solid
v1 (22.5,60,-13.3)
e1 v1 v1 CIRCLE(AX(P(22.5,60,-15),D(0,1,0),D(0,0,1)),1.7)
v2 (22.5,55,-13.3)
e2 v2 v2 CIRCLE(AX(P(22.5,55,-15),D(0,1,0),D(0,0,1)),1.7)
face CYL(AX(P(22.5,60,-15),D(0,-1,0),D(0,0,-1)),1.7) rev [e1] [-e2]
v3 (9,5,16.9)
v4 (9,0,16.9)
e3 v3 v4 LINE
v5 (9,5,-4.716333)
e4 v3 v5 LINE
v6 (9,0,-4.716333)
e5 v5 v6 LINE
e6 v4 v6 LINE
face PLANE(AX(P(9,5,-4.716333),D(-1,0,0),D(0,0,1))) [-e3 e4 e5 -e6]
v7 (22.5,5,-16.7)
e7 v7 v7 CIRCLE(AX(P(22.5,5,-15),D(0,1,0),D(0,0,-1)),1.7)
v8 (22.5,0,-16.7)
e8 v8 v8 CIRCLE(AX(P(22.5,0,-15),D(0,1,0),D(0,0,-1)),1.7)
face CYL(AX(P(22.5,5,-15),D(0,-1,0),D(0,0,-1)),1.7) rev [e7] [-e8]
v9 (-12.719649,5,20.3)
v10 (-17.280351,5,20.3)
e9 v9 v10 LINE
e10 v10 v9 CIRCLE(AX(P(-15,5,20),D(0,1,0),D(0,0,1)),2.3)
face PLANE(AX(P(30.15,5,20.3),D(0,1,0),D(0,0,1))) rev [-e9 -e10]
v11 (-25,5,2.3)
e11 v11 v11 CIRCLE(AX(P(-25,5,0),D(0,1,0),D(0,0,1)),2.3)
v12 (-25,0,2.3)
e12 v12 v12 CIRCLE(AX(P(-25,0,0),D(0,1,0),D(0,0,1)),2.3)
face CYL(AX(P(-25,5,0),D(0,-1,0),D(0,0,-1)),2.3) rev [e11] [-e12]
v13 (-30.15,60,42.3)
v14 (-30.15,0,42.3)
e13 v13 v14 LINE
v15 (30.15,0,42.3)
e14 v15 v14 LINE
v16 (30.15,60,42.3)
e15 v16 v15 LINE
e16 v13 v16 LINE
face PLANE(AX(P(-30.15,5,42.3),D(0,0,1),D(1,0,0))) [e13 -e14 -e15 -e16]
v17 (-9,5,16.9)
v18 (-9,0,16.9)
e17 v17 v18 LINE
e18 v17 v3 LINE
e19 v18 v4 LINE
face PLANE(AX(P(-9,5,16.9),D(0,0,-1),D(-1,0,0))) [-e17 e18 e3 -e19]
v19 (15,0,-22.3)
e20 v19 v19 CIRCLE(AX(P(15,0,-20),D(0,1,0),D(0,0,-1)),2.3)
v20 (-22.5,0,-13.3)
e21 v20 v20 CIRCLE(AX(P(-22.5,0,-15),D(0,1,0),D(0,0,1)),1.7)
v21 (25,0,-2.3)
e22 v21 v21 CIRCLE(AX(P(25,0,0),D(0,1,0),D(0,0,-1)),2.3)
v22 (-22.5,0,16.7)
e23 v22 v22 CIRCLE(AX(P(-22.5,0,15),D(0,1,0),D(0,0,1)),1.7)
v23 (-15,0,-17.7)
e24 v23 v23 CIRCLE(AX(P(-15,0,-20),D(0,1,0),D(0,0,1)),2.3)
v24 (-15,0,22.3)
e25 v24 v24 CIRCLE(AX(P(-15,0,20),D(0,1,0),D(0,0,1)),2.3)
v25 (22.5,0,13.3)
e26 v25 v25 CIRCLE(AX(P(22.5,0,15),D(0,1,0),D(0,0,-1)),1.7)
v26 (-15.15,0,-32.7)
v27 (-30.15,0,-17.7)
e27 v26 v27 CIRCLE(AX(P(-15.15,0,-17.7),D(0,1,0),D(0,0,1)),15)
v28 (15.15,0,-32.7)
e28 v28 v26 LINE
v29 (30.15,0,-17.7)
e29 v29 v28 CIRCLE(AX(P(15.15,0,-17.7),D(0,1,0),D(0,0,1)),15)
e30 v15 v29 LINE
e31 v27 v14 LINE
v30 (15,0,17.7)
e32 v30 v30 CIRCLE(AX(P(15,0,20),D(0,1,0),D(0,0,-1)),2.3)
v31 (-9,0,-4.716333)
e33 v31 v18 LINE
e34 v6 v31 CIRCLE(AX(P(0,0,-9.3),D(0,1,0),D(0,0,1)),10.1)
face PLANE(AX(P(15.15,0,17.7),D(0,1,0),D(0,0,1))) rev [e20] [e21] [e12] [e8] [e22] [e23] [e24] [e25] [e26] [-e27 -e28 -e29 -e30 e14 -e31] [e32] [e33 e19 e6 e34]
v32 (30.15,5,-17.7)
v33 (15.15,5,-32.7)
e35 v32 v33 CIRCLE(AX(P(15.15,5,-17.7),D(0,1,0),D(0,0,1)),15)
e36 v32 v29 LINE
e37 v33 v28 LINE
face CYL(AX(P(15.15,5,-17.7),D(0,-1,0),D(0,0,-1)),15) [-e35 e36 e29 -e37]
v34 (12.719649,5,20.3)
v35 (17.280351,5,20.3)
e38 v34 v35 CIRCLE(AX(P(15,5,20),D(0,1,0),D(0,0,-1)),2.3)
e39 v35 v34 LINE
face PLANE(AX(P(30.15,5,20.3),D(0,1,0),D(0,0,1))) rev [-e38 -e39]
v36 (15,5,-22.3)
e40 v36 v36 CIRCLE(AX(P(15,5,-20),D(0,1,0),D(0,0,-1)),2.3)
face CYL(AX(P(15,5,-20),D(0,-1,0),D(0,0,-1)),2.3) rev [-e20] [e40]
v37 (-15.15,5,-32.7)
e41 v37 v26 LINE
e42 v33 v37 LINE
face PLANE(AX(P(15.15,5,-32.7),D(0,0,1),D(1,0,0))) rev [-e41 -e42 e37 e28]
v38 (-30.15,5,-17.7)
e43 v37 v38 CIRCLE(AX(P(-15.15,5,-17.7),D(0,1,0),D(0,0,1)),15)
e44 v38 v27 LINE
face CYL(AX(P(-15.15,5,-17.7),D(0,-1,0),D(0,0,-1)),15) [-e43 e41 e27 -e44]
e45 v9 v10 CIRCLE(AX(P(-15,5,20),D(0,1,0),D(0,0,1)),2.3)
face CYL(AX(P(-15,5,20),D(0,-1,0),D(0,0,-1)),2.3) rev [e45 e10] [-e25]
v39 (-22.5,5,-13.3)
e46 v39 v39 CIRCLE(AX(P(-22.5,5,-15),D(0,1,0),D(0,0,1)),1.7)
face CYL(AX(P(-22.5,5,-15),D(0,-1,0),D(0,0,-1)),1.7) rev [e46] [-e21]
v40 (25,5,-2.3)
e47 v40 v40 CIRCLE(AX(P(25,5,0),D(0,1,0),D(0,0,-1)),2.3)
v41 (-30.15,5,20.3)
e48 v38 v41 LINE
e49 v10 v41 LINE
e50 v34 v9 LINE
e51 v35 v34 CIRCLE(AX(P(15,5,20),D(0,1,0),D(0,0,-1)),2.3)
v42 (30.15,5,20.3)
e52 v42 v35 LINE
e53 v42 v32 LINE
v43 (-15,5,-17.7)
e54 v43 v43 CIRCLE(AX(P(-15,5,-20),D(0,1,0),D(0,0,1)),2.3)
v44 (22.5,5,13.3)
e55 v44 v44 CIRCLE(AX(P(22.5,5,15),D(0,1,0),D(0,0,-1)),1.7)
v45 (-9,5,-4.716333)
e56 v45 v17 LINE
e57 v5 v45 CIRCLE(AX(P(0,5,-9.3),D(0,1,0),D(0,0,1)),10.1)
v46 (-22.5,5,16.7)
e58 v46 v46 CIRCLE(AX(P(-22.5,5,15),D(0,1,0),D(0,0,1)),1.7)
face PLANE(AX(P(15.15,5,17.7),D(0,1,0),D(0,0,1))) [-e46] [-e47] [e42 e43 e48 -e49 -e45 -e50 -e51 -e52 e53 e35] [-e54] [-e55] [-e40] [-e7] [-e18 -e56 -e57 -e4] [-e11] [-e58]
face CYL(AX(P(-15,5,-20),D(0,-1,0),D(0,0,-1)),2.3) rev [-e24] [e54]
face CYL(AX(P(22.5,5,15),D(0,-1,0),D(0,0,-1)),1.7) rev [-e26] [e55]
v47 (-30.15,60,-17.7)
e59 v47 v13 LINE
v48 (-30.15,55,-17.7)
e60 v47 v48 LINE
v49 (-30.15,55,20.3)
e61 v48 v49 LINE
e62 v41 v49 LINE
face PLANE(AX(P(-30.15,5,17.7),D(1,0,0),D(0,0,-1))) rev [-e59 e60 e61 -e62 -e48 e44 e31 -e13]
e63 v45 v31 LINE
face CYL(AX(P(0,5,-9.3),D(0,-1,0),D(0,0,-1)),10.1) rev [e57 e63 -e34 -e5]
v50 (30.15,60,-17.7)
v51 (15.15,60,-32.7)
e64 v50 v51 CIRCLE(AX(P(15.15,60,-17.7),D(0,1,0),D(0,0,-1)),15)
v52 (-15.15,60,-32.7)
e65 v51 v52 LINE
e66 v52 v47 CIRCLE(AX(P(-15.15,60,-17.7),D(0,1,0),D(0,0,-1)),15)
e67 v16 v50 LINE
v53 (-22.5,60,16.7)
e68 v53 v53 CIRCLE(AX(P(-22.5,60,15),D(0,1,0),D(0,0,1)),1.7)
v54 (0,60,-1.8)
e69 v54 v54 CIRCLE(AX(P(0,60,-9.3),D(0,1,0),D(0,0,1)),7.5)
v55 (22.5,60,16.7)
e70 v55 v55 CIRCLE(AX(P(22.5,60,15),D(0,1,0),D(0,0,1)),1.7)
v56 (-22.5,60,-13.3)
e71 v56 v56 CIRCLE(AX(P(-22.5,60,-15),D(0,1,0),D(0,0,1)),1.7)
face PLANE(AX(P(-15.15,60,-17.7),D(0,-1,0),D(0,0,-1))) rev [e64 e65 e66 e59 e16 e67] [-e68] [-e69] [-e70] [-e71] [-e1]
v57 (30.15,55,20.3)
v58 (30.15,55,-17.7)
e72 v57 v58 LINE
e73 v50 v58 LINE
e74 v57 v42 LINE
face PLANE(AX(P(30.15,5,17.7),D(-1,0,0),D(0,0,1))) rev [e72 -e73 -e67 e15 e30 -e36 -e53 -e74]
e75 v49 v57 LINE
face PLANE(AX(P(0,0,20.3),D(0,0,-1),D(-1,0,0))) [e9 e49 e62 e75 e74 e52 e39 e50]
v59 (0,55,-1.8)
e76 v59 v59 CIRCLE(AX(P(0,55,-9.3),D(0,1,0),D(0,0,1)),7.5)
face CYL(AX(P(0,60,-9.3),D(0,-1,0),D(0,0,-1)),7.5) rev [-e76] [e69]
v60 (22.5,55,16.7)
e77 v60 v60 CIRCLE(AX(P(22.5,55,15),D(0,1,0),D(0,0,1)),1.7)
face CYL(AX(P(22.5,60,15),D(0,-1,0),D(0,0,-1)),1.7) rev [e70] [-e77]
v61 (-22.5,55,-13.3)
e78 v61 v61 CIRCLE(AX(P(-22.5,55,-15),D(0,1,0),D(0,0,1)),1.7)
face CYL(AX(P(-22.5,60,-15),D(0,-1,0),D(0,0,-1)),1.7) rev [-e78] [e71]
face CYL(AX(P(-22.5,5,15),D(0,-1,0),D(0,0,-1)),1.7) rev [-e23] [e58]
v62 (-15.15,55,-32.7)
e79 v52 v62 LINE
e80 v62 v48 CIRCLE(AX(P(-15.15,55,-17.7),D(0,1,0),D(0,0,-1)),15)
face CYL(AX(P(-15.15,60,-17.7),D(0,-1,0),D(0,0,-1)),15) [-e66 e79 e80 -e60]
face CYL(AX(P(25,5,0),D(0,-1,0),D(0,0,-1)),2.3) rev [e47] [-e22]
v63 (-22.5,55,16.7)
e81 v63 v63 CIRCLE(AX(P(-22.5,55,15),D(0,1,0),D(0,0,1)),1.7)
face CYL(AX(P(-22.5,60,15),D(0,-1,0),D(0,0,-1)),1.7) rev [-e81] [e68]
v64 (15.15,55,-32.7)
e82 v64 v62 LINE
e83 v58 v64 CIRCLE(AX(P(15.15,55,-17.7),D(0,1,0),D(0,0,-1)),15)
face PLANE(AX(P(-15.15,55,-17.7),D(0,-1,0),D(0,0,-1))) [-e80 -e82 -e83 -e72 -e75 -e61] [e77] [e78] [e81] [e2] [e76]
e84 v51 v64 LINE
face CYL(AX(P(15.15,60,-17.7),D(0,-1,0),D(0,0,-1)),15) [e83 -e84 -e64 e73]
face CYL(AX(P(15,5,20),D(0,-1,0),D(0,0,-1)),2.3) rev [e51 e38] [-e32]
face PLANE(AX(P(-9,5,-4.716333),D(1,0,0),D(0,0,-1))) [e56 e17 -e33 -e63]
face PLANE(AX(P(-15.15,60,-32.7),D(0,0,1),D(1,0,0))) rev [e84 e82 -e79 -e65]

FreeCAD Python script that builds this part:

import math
import FreeCAD as App
import Part
import Sketcher

V = App.Vector


def add_polygon(sketch, points):
    """Adds a closed chain of lines whose ends are joined by coincident constraints."""
    first, n = sketch.GeometryCount, len(points)
    for a, b in zip(points, points[1:] + points[:1]):
        sketch.addGeometry(Part.LineSegment(App.Vector(*a, 0), App.Vector(*b, 0)), False)
    for i in range(n):
        sketch.addConstraint(Sketcher.Constraint("Coincident", first + i, 2, first + (i + 1) % n, 1))

doc = App.newDocument("Part")
params = doc.addObject("Spreadsheet::Sheet", "Params")
for row, (alias, value) in enumerate([
    ("sketch1_radius", "15 mm"),
    ("sketch1_diameter", "4.6 mm"),
    ("sketch1_diameter2", "3.4 mm"),
    ("sketch1_radius2", "10.1 mm"),
    ("sketch1_width", "18 mm"),
    ("pad1_length", "5 mm"),
    ("sketch2_width", "30.3 mm"),
    ("sketch2_width2", "60.3 mm"),
    ("sketch2_height", "24.6 mm"),
    ("pad2_length", "5 mm"),
    ("sketch3_height", "15 mm"),
    ("sketch3_width", "60.3 mm"),
    ("pad3_length", "50 mm"),
    ("sketch4_diameter", "15 mm"),
    ("sketch4_radius", "15 mm"),
    ("sketch4_diameter2", "3.4 mm"),
    ("sketch4_height", "60 mm"),
    ("sketch4_width", "60.3 mm"),
    ("pad4_length", "5 mm"),
    ("sketch5_height", "50 mm"),
    ("sketch5_width", "60.3 mm"),
    ("pad5_length", "7 mm"),
], start=1):
    params.set(f"A{row}", alias)
    params.set(f"B{row}", "=" + value)
    params.setAlias(f"B{row}", alias)

body = doc.addObject("PartDesign::Body", "Body")

# Sketch on XZ plane
sketch1 = body.newObject("Sketcher::SketchObject", "Sketch")
sketch1.AttachmentSupport = (doc.getObject("XZ_Plane"), [""])
sketch1.MapMode = "FlatFace"
sketch1.addGeometry(Part.LineSegment(V(-15.15, 32.7, 0), V(15.15, 32.7, 0)), False)
sketch1.addGeometry(Part.ArcOfCircle(Part.Circle(V(15.15, 17.7, 0), V(0, 0, 1), 15), math.radians(0), math.radians(90)), False)
sketch1.addGeometry(Part.LineSegment(V(30.15, 17.7, 0), V(30.15, -17.7, 0)), False)
sketch1.addGeometry(Part.ArcOfCircle(Part.Circle(V(15.15, -17.7, 0), V(0, 0, 1), 15), math.radians(-90), math.radians(0)), False)
sketch1.addGeometry(Part.LineSegment(V(15.15, -32.7, 0), V(-15.15, -32.7, 0)), False)
sketch1.addGeometry(Part.ArcOfCircle(Part.Circle(V(-15.15, -17.7, 0), V(0, 0, 1), 15), math.radians(180), math.radians(270)), False)
sketch1.addGeometry(Part.LineSegment(V(-30.15, -17.7, 0), V(-30.15, 17.7, 0)), False)
sketch1.addGeometry(Part.ArcOfCircle(Part.Circle(V(-15.15, 17.7, 0), V(0, 0, 1), 15), math.radians(90), math.radians(180)), False)
sketch1.addGeometry(Part.Circle(V(15, 20, 0), V(0, 0, 1), 2.3), False)
sketch1.addGeometry(Part.Circle(V(22.5, 15, 0), V(0, 0, 1), 1.7), False)
sketch1.addGeometry(Part.Circle(V(-15, 20, 0), V(0, 0, 1), 2.3), False)
sketch1.addGeometry(Part.Circle(V(-22.5, 15, 0), V(0, 0, 1), 1.7), False)
sketch1.addGeometry(Part.Circle(V(25, 0, 0), V(0, 0, 1), 2.3), False)
sketch1.addGeometry(Part.Circle(V(22.5, -15, 0), V(0, 0, 1), 1.7), False)
sketch1.addGeometry(Part.Circle(V(15, -20, 0), V(0, 0, 1), 2.3), False)
sketch1.addGeometry(Part.ArcOfCircle(Part.Circle(V(0, -9.3, 0), V(0, 0, 1), 10.1), math.radians(153.010424), math.radians(386.989576)), False)
sketch1.addGeometry(Part.LineSegment(V(9, -4.716333, 0), V(9, 16.9, 0)), False)
sketch1.addGeometry(Part.LineSegment(V(9, 16.9, 0), V(-9, 16.9, 0)), False)
sketch1.addGeometry(Part.LineSegment(V(-9, 16.9, 0), V(-9, -4.716333, 0)), False)
sketch1.addGeometry(Part.Circle(V(-25, 0, 0), V(0, 0, 1), 2.3), False)
sketch1.addGeometry(Part.Circle(V(-22.5, -15, 0), V(0, 0, 1), 1.7), False)
sketch1.addGeometry(Part.Circle(V(-15, -20, 0), V(0, 0, 1), 2.3), False)
sketch1.addConstraint(Sketcher.Constraint("Tangent", 0, 2, 1, 2))
sketch1.addConstraint(Sketcher.Constraint("Tangent", 1, 1, 2, 1))
sketch1.addConstraint(Sketcher.Constraint("Tangent", 2, 2, 3, 2))
sketch1.addConstraint(Sketcher.Constraint("Tangent", 3, 1, 4, 1))
sketch1.addConstraint(Sketcher.Constraint("Tangent", 4, 2, 5, 2))
sketch1.addConstraint(Sketcher.Constraint("Tangent", 5, 1, 6, 1))
sketch1.addConstraint(Sketcher.Constraint("Tangent", 6, 2, 7, 2))
sketch1.addConstraint(Sketcher.Constraint("Tangent", 7, 1, 0, 1))
sketch1.addConstraint(Sketcher.Constraint("Coincident", 15, 2, 16, 1))
sketch1.addConstraint(Sketcher.Constraint("Coincident", 16, 2, 17, 1))
sketch1.addConstraint(Sketcher.Constraint("Coincident", 17, 2, 18, 1))
sketch1.addConstraint(Sketcher.Constraint("Coincident", 18, 2, 15, 1))
sketch1.addConstraint(Sketcher.Constraint("Horizontal", 0))
sketch1.addConstraint(Sketcher.Constraint("Vertical", 2))
sketch1.addConstraint(Sketcher.Constraint("Horizontal", 4))
sketch1.addConstraint(Sketcher.Constraint("Vertical", 6))
sketch1.addConstraint(Sketcher.Constraint("Vertical", 16))
sketch1.addConstraint(Sketcher.Constraint("Horizontal", 17))
sketch1.addConstraint(Sketcher.Constraint("Vertical", 18))
sketch1.addConstraint(Sketcher.Constraint("Equal", 1, 3))
sketch1.addConstraint(Sketcher.Constraint("Equal", 3, 5))
sketch1.addConstraint(Sketcher.Constraint("Equal", 5, 7))
sketch1.addConstraint(Sketcher.Constraint("Equal", 8, 10))
sketch1.addConstraint(Sketcher.Constraint("Equal", 9, 11))
sketch1.addConstraint(Sketcher.Constraint("Equal", 10, 12))
sketch1.addConstraint(Sketcher.Constraint("Equal", 11, 13))
sketch1.addConstraint(Sketcher.Constraint("Equal", 12, 14))
sketch1.addConstraint(Sketcher.Constraint("Equal", 14, 19))
sketch1.addConstraint(Sketcher.Constraint("Equal", 13, 20))
sketch1.addConstraint(Sketcher.Constraint("Equal", 19, 21))
sketch1.addConstraint(Sketcher.Constraint("Symmetric", 1, 3, 5, 3, -1, 1))
sketch1.addConstraint(Sketcher.Constraint("Symmetric", 11, 3, 13, 3, -1, 1))
sketch1.addConstraint(Sketcher.Constraint("Symmetric", 10, 3, 14, 3, -1, 1))
sketch1.addConstraint(Sketcher.Constraint("Symmetric", 12, 3, 19, 3, -1, 1))
sketch1.addConstraint(Sketcher.Constraint("Symmetric", 9, 3, 20, 3, -1, 1))
sketch1.addConstraint(Sketcher.Constraint("Symmetric", 8, 3, 21, 3, -1, 1))
sketch1.addConstraint(Sketcher.Constraint("Symmetric", 8, 3, 10, 3, -2))
sketch1.addConstraint(Sketcher.Constraint("Symmetric", 9, 3, 11, 3, -2))
sketch1.addConstraint(Sketcher.Constraint("Symmetric", 15, 2, 18, 2, -2))
sketch1.addConstraint(Sketcher.Constraint("PointOnObject", 12, 3, -1))
sketch1.addConstraint(Sketcher.Constraint("Radius", 1, 15.0))
sketch1.addConstraint(Sketcher.Constraint("Diameter", 8, 4.6))
sketch1.addConstraint(Sketcher.Constraint("Diameter", 9, 3.4))
sketch1.addConstraint(Sketcher.Constraint("Radius", 15, 10.1))
sketch1.addConstraint(Sketcher.Constraint("DistanceX", 17, 2, 17, 1, 18.0))
sketch1.addConstraint(Sketcher.Constraint("DistanceX", 0, 1, 0, 2, 30.3))
sketch1.addConstraint(Sketcher.Constraint("DistanceY", 2, 2, 2, 1, 35.4))
sketch1.addConstraint(Sketcher.Constraint("DistanceX", -1, 1, 8, 3, 15.0))
sketch1.addConstraint(Sketcher.Constraint("DistanceY", -1, 1, 8, 3, 20.0))
sketch1.addConstraint(Sketcher.Constraint("DistanceY", -1, 1, 9, 3, 15.0))
sketch1.addConstraint(Sketcher.Constraint("DistanceX", -1, 1, 12, 3, 25.0))
sketch1.addConstraint(Sketcher.Constraint("DistanceX", -1, 1, 9, 3, 22.5))
sketch1.addConstraint(Sketcher.Constraint("DistanceY", 15, 3, -1, 1, 9.3))
sketch1.addConstraint(Sketcher.Constraint("DistanceY", -1, 1, 16, 2, 16.9))
sketch1.setExpression("Constraints[40]", "Params.sketch1_radius")
sketch1.setExpression("Constraints[41]", "Params.sketch1_diameter")
sketch1.setExpression("Constraints[42]", "Params.sketch1_diameter2")
sketch1.setExpression("Constraints[43]", "Params.sketch1_radius2")
sketch1.setExpression("Constraints[44]", "Params.sketch1_width")
pad1 = body.newObject("PartDesign::Pad", "Pad")
pad1.Profile = sketch1
pad1.setExpression("Length", "Params.pad1_length")
pad1.Reversed = True

# Sketch on XZ plane
sketch2 = body.newObject("Sketcher::SketchObject", "Sketch001")
sketch2.AttachmentSupport = (doc.getObject("XZ_Plane"), [""])
sketch2.MapMode = "FlatFace"
add_polygon(sketch2, [(-30.15, 42.3), (-30.15, 17.7), (-15.15, 32.7), (15.15, 32.7), (30.15, 17.7), (30.15, 42.3)])  # lines 0-5
sketch2.addConstraint(Sketcher.Constraint("Vertical", 0))
sketch2.addConstraint(Sketcher.Constraint("Horizontal", 2))
sketch2.addConstraint(Sketcher.Constraint("Vertical", 4))
sketch2.addConstraint(Sketcher.Constraint("Horizontal", 5))
sketch2.addConstraint(Sketcher.Constraint("Symmetric", 0, 2, 3, 2, -2))
sketch2.addConstraint(Sketcher.Constraint("Perpendicular", 1, 3))
sketch2.addConstraint(Sketcher.Constraint("Equal", 1, 3))
sketch2.addConstraint(Sketcher.Constraint("DistanceX", 2, 1, 2, 2, 30.3))
sketch2.addConstraint(Sketcher.Constraint("DistanceX", 5, 2, 5, 1, 60.3))
sketch2.addConstraint(Sketcher.Constraint("DistanceY", 0, 2, 0, 1, 24.6))
sketch2.addConstraint(Sketcher.Constraint("DistanceY", -1, 1, 0, 2, 17.7))
sketch2.setExpression("Constraints[13]", "Params.sketch2_width")
sketch2.setExpression("Constraints[14]", "Params.sketch2_width2")
sketch2.setExpression("Constraints[15]", "Params.sketch2_height")
pad2 = body.newObject("PartDesign::Pad", "Pad001")
pad2.Profile = sketch2
pad2.setExpression("Length", "Params.pad2_length")
pad2.Reversed = True

# Sketch on XZ plane
sketch3 = body.newObject("Sketcher::SketchObject", "Sketch002")
sketch3.AttachmentSupport = (doc.getObject("XZ_Plane"), [""])
sketch3.MapMode = "FlatFace"
sketch3.AttachmentOffset = App.Placement(V(0, 0, -5), App.Rotation())
add_polygon(sketch3, [(-30.15, 27.3), (-30.15, 42.3), (30.15, 42.3), (30.15, 27.3)])  # lines 0-3
sketch3.addConstraint(Sketcher.Constraint("Vertical", 0))
sketch3.addConstraint(Sketcher.Constraint("Horizontal", 1))
sketch3.addConstraint(Sketcher.Constraint("Vertical", 2))
sketch3.addConstraint(Sketcher.Constraint("Horizontal", 3))
sketch3.addConstraint(Sketcher.Constraint("DistanceY", 0, 1, 0, 2, 15.0))
sketch3.addConstraint(Sketcher.Constraint("DistanceX", 1, 1, 1, 2, 60.3))
sketch3.addConstraint(Sketcher.Constraint("DistanceY", -1, 1, 0, 2, 42.3))
sketch3.addConstraint(Sketcher.Constraint("DistanceX", 0, 2, -1, 1, 30.15))
sketch3.setExpression("Constraints[8]", "Params.sketch3_height")
sketch3.setExpression("Constraints[9]", "Params.sketch3_width")
pad3 = body.newObject("PartDesign::Pad", "Pad002")
pad3.Profile = sketch3
pad3.setExpression("Length", "Params.pad3_length")
pad3.Reversed = True

# Sketch on XZ plane
sketch4 = body.newObject("Sketcher::SketchObject", "Sketch003")
sketch4.AttachmentSupport = (doc.getObject("XZ_Plane"), [""])
sketch4.MapMode = "FlatFace"
sketch4.AttachmentOffset = App.Placement(V(0, 0, -55), App.Rotation())
sketch4.addGeometry(Part.LineSegment(V(-30.15, 42.3, 0), V(30.15, 42.3, 0)), False)
sketch4.addGeometry(Part.LineSegment(V(30.15, 42.3, 0), V(30.15, -17.7, 0)), False)
sketch4.addGeometry(Part.ArcOfCircle(Part.Circle(V(15.15, -17.7, 0), V(0, 0, 1), 15), math.radians(-90), math.radians(0)), False)
sketch4.addGeometry(Part.LineSegment(V(15.15, -32.7, 0), V(-15.15, -32.7, 0)), False)
sketch4.addGeometry(Part.ArcOfCircle(Part.Circle(V(-15.15, -17.7, 0), V(0, 0, 1), 15), math.radians(180), math.radians(270)), False)
sketch4.addGeometry(Part.LineSegment(V(-30.15, -17.7, 0), V(-30.15, 42.3, 0)), False)
sketch4.addGeometry(Part.Circle(V(-22.5, 15, 0), V(0, 0, 1), 1.7), False)
sketch4.addGeometry(Part.Circle(V(22.5, 15, 0), V(0, 0, 1), 1.7), False)
sketch4.addGeometry(Part.Circle(V(-22.5, -15, 0), V(0, 0, 1), 1.7), False)
sketch4.addGeometry(Part.Circle(V(0, -9.3, 0), V(0, 0, 1), 7.5), False)
sketch4.addGeometry(Part.Circle(V(22.5, -15, 0), V(0, 0, 1), 1.7), False)
sketch4.addConstraint(Sketcher.Constraint("Coincident", 0, 2, 1, 1))
sketch4.addConstraint(Sketcher.Constraint("Tangent", 1, 2, 2, 2))
sketch4.addConstraint(Sketcher.Constraint("Tangent", 2, 1, 3, 1))
sketch4.addConstraint(Sketcher.Constraint("Tangent", 3, 2, 4, 2))
sketch4.addConstraint(Sketcher.Constraint("Tangent", 4, 1, 5, 1))
sketch4.addConstraint(Sketcher.Constraint("Coincident", 5, 2, 0, 1))
sketch4.addConstraint(Sketcher.Constraint("Horizontal", 0))
sketch4.addConstraint(Sketcher.Constraint("Vertical", 1))
sketch4.addConstraint(Sketcher.Constraint("Horizontal", 3))
sketch4.addConstraint(Sketcher.Constraint("Vertical", 5))
sketch4.addConstraint(Sketcher.Constraint("Equal", 2, 4))
sketch4.addConstraint(Sketcher.Constraint("Equal", 6, 7))
sketch4.addConstraint(Sketcher.Constraint("Equal", 7, 8))
sketch4.addConstraint(Sketcher.Constraint("Equal", 8, 10))
sketch4.addConstraint(Sketcher.Constraint("Symmetric", 7, 3, 8, 3, -1, 1))
sketch4.addConstraint(Sketcher.Constraint("Symmetric", 6, 3, 10, 3, -1, 1))
sketch4.addConstraint(Sketcher.Constraint("Symmetric", 6, 3, 7, 3, -2))
sketch4.addConstraint(Sketcher.Constraint("PointOnObject", 9, 3, -2))
sketch4.addConstraint(Sketcher.Constraint("Diameter", 9, 15.0))
sketch4.addConstraint(Sketcher.Constraint("Radius", 2, 15.0))
sketch4.addConstraint(Sketcher.Constraint("Diameter", 6, 3.4))
sketch4.addConstraint(Sketcher.Constraint("DistanceY", 1, 2, 1, 1, 60.0))
sketch4.addConstraint(Sketcher.Constraint("DistanceX", 0, 1, 0, 2, 60.3))
sketch4.addConstraint(Sketcher.Constraint("DistanceY", -1, 1, 6, 3, 15.0))
sketch4.addConstraint(Sketcher.Constraint("DistanceX", 6, 3, 7, 3, 45.0))
sketch4.addConstraint(Sketcher.Constraint("DistanceY", 2, 3, -1, 1, 17.7))
sketch4.addConstraint(Sketcher.Constraint("DistanceY", 9, 3, -1, 1, 9.3))
sketch4.addConstraint(Sketcher.Constraint("DistanceX", -1, 1, 2, 3, 15.15))
sketch4.setExpression("Constraints[18]", "Params.sketch4_diameter")
sketch4.setExpression("Constraints[19]", "Params.sketch4_radius")
sketch4.setExpression("Constraints[20]", "Params.sketch4_diameter2")
sketch4.setExpression("Constraints[21]", "Params.sketch4_height")
sketch4.setExpression("Constraints[22]", "Params.sketch4_width")
pad4 = body.newObject("PartDesign::Pad", "Pad003")
pad4.Profile = sketch4
pad4.setExpression("Length", "Params.pad4_length")
pad4.Reversed = True

# Sketch on XY plane
sketch5 = body.newObject("Sketcher::SketchObject", "Sketch004")
sketch5.AttachmentSupport = (doc.getObject("XY_Plane"), [""])
sketch5.MapMode = "FlatFace"
sketch5.AttachmentOffset = App.Placement(V(0, 0, 27.3), App.Rotation())
add_polygon(sketch5, [(30.15, 55), (30.15, 5), (-30.15, 5), (-30.15, 55)])  # lines 0-3
sketch5.addConstraint(Sketcher.Constraint("Vertical", 0))
sketch5.addConstraint(Sketcher.Constraint("Horizontal", 1))
sketch5.addConstraint(Sketcher.Constraint("Vertical", 2))
sketch5.addConstraint(Sketcher.Constraint("Horizontal", 3))
sketch5.addConstraint(Sketcher.Constraint("DistanceY", 0, 2, 0, 1, 50.0))
sketch5.addConstraint(Sketcher.Constraint("DistanceX", 1, 2, 1, 1, 60.3))
sketch5.addConstraint(Sketcher.Constraint("DistanceY", -1, 1, 0, 2, 5.0))
sketch5.addConstraint(Sketcher.Constraint("DistanceX", -1, 1, 0, 2, 30.15))
sketch5.setExpression("Constraints[8]", "Params.sketch5_height")
sketch5.setExpression("Constraints[9]", "Params.sketch5_width")
pad5 = body.newObject("PartDesign::Pad", "Pad004")
pad5.Profile = sketch5
pad5.setExpression("Length", "Params.pad5_length")
pad5.Reversed = True

doc.recompute()
